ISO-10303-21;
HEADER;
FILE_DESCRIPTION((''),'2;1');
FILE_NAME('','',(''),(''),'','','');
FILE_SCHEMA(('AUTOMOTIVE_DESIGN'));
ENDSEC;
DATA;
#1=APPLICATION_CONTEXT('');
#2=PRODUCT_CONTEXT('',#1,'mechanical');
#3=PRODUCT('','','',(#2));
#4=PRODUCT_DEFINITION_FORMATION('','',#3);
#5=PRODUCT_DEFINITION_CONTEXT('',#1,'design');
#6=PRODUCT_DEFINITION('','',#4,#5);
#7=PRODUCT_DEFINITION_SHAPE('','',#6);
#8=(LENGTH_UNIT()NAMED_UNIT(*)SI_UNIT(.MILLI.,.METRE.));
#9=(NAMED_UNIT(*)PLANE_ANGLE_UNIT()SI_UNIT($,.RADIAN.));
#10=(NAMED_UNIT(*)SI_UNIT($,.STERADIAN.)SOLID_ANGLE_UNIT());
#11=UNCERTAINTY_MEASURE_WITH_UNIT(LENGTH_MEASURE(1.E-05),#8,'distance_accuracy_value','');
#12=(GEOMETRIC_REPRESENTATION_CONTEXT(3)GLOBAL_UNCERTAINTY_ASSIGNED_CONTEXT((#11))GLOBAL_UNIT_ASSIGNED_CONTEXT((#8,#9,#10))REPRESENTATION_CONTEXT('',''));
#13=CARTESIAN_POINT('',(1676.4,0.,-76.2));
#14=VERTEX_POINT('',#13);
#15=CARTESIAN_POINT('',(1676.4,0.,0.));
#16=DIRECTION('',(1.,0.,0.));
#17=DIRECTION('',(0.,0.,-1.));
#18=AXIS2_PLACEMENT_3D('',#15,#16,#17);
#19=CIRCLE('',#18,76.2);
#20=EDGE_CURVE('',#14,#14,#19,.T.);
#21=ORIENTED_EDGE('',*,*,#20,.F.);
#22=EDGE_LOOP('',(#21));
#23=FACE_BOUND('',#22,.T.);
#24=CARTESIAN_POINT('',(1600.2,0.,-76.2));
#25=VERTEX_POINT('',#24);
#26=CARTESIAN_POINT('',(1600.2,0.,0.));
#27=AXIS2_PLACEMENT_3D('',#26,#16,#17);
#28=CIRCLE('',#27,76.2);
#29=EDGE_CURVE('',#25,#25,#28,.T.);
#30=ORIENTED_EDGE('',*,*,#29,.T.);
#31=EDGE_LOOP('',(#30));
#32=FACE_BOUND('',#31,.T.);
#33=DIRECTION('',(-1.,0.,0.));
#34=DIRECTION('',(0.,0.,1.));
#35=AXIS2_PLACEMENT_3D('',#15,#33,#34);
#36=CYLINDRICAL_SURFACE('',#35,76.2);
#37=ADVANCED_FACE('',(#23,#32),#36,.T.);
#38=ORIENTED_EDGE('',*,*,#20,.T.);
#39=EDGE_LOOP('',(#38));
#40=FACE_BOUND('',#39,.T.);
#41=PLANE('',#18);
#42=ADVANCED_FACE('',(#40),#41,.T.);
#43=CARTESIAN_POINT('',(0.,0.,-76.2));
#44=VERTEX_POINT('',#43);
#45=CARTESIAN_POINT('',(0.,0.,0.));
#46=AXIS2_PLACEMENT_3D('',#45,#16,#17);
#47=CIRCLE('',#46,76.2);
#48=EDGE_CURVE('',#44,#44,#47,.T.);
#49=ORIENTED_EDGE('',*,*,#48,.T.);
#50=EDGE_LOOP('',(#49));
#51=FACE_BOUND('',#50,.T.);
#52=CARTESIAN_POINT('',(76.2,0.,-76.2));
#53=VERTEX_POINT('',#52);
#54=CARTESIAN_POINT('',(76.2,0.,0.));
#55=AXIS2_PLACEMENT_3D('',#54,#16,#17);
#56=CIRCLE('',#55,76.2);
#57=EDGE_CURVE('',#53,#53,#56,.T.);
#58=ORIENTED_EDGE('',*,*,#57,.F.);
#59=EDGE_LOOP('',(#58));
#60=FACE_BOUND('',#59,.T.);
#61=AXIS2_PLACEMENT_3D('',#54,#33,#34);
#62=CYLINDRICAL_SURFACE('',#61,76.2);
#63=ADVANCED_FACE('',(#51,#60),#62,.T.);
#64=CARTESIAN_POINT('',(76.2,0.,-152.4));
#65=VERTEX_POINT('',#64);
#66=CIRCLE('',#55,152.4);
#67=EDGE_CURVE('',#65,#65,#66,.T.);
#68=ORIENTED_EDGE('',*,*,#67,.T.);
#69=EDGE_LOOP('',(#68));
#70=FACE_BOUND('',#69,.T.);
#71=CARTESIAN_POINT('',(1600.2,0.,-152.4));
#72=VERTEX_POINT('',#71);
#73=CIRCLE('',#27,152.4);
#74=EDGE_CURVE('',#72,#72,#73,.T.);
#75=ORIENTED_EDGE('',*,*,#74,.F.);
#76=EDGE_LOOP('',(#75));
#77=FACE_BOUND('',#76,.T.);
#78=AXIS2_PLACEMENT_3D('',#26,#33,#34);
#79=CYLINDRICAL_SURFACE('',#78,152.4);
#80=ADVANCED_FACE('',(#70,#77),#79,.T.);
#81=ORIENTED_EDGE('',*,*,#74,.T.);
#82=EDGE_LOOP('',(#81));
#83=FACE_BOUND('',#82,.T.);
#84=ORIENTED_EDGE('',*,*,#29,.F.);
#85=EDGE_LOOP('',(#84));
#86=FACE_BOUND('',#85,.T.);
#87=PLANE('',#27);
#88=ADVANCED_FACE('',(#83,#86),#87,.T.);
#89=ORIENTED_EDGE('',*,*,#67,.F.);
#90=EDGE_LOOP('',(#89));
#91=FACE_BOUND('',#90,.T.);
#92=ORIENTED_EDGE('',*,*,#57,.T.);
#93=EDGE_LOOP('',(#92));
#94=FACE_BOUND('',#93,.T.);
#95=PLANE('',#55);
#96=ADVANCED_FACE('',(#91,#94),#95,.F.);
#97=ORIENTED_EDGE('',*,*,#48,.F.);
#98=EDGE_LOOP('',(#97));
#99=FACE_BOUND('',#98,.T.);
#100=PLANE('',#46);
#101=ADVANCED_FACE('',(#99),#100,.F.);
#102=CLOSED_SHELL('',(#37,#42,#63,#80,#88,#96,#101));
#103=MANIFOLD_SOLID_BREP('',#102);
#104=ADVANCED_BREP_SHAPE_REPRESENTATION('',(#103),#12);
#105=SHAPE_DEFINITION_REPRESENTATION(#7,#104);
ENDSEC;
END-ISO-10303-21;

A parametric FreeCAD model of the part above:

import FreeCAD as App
import Part
import Sketcher
Q = App.Units.Quantity

doc = App.newDocument("Part")
body = doc.addObject("PartDesign::Body", "Body")

sketch1 = body.newObject("Sketcher::SketchObject", "Sketch")
sketch1.AttachmentSupport = (doc.getObject("YZ_Plane"), [""])
sketch1.MapMode = "FlatFace"
sketch1.addGeometry(Part.Circle(App.Vector(0, 0, 0), App.Vector(0, 0, 1), 76.2), False)
sketch1.addConstraint(Sketcher.Constraint("Coincident", 0, 3, -1, 1))
sketch1.addConstraint(Sketcher.Constraint("Diameter", 0, Q("6 in")))
pad1 = body.newObject("PartDesign::Pad", "Pad")
pad1.Profile = sketch1
pad1.Length = Q("3 in")

sketch2 = body.newObject("Sketcher::SketchObject", "Sketch001")
sketch2.AttachmentSupport = (doc.getObject("YZ_Plane"), [""])
sketch2.MapMode = "FlatFace"
sketch2.AttachmentOffset = App.Placement(App.Vector(0, 0, 3 * 25.4), App.Rotation())
sketch2.addGeometry(Part.Circle(App.Vector(0, 0, 0), App.Vector(0, 0, 1), 152.4), False)
sketch2.addConstraint(Sketcher.Constraint("Coincident", 0, 3, -1, 1))
sketch2.addConstraint(Sketcher.Constraint("Diameter", 0, Q("12 in")))
pad2 = body.newObject("PartDesign::Pad", "Pad001")
pad2.Profile = sketch2
pad2.Length = Q("60 in")

sketch3 = body.newObject("Sketcher::SketchObject", "Sketch002")
sketch3.AttachmentSupport = (doc.getObject("YZ_Plane"), [""])
sketch3.MapMode = "FlatFace"
sketch3.AttachmentOffset = App.Placement(App.Vector(0, 0, 63 * 25.4), App.Rotation())
sketch3.addGeometry(Part.Circle(App.Vector(0, 0, 0), App.Vector(0, 0, 1), 76.2), False)
sketch3.addConstraint(Sketcher.Constraint("Coincident", 0, 3, -1, 1))
sketch3.addConstraint(Sketcher.Constraint("Diameter", 0, Q("6 in")))
pad3 = body.newObject("PartDesign::Pad", "Pad002")
pad3.Profile = sketch3
pad3.Length = Q("3 in")

doc.recompute()
